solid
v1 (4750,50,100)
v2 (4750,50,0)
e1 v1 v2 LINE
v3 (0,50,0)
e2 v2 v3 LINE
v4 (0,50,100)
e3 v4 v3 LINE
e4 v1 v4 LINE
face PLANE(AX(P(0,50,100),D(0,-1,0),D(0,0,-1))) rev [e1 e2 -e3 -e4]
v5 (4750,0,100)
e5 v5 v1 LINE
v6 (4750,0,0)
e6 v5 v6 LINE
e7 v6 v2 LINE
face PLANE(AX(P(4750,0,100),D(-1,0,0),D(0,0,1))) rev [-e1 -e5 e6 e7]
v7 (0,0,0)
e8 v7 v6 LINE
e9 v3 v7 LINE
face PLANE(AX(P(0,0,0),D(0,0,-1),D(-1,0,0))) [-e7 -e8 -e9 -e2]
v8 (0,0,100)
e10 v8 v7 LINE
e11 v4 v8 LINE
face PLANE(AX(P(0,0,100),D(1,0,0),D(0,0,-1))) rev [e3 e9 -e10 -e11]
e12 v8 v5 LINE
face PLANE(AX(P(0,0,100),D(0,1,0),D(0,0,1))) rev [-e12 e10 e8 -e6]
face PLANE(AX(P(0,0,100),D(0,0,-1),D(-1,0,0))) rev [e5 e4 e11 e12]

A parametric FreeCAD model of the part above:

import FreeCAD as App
import Part
import Sketcher

doc = App.newDocument("Part")
body = doc.addObject("PartDesign::Body", "Body")

# Sketch on XY plane
sketch1 = body.newObject("Sketcher::SketchObject", "Sketch")
sketch1.AttachmentSupport = (doc.getObject("XY_Plane"), [""])
sketch1.MapMode = "FlatFace"
sketch1.addGeometry(Part.LineSegment(App.Vector(0, 50, 0), App.Vector(0, 0, 0)), False)
sketch1.addGeometry(Part.LineSegment(App.Vector(0, 0, 0), App.Vector(4750, 0, 0)), False)
sketch1.addGeometry(Part.LineSegment(App.Vector(4750, 0, 0), App.Vector(4750, 50, 0)), False)
sketch1.addGeometry(Part.LineSegment(App.Vector(4750, 50, 0), App.Vector(0, 50, 0)), False)
sketch1.addConstraint(Sketcher.Constraint("Coincident", 0, 2, 1, 1))
sketch1.addConstraint(Sketcher.Constraint("Coincident", 1, 2, 2, 1))
sketch1.addConstraint(Sketcher.Constraint("Coincident", 2, 2, 3, 1))
sketch1.addConstraint(Sketcher.Constraint("Coincident", 3, 2, 0, 1))
sketch1.addConstraint(Sketcher.Constraint("Vertical", 0))
sketch1.addConstraint(Sketcher.Constraint("Horizontal", 1))
sketch1.addConstraint(Sketcher.Constraint("Vertical", 2))
sketch1.addConstraint(Sketcher.Constraint("Horizontal", 3))
sketch1.addConstraint(Sketcher.Constraint("Coincident", 0, 2, -1, 1))
sketch1.addConstraint(Sketcher.Constraint("DistanceX", 1, 1, 1, 2, 4750.0))
sketch1.addConstraint(Sketcher.Constraint("DistanceY", 0, 2, 0, 1, 50.0))
pad1 = body.newObject("PartDesign::Pad", "Pad")
pad1.Profile = sketch1
pad1.Length = 100

doc.recompute()
